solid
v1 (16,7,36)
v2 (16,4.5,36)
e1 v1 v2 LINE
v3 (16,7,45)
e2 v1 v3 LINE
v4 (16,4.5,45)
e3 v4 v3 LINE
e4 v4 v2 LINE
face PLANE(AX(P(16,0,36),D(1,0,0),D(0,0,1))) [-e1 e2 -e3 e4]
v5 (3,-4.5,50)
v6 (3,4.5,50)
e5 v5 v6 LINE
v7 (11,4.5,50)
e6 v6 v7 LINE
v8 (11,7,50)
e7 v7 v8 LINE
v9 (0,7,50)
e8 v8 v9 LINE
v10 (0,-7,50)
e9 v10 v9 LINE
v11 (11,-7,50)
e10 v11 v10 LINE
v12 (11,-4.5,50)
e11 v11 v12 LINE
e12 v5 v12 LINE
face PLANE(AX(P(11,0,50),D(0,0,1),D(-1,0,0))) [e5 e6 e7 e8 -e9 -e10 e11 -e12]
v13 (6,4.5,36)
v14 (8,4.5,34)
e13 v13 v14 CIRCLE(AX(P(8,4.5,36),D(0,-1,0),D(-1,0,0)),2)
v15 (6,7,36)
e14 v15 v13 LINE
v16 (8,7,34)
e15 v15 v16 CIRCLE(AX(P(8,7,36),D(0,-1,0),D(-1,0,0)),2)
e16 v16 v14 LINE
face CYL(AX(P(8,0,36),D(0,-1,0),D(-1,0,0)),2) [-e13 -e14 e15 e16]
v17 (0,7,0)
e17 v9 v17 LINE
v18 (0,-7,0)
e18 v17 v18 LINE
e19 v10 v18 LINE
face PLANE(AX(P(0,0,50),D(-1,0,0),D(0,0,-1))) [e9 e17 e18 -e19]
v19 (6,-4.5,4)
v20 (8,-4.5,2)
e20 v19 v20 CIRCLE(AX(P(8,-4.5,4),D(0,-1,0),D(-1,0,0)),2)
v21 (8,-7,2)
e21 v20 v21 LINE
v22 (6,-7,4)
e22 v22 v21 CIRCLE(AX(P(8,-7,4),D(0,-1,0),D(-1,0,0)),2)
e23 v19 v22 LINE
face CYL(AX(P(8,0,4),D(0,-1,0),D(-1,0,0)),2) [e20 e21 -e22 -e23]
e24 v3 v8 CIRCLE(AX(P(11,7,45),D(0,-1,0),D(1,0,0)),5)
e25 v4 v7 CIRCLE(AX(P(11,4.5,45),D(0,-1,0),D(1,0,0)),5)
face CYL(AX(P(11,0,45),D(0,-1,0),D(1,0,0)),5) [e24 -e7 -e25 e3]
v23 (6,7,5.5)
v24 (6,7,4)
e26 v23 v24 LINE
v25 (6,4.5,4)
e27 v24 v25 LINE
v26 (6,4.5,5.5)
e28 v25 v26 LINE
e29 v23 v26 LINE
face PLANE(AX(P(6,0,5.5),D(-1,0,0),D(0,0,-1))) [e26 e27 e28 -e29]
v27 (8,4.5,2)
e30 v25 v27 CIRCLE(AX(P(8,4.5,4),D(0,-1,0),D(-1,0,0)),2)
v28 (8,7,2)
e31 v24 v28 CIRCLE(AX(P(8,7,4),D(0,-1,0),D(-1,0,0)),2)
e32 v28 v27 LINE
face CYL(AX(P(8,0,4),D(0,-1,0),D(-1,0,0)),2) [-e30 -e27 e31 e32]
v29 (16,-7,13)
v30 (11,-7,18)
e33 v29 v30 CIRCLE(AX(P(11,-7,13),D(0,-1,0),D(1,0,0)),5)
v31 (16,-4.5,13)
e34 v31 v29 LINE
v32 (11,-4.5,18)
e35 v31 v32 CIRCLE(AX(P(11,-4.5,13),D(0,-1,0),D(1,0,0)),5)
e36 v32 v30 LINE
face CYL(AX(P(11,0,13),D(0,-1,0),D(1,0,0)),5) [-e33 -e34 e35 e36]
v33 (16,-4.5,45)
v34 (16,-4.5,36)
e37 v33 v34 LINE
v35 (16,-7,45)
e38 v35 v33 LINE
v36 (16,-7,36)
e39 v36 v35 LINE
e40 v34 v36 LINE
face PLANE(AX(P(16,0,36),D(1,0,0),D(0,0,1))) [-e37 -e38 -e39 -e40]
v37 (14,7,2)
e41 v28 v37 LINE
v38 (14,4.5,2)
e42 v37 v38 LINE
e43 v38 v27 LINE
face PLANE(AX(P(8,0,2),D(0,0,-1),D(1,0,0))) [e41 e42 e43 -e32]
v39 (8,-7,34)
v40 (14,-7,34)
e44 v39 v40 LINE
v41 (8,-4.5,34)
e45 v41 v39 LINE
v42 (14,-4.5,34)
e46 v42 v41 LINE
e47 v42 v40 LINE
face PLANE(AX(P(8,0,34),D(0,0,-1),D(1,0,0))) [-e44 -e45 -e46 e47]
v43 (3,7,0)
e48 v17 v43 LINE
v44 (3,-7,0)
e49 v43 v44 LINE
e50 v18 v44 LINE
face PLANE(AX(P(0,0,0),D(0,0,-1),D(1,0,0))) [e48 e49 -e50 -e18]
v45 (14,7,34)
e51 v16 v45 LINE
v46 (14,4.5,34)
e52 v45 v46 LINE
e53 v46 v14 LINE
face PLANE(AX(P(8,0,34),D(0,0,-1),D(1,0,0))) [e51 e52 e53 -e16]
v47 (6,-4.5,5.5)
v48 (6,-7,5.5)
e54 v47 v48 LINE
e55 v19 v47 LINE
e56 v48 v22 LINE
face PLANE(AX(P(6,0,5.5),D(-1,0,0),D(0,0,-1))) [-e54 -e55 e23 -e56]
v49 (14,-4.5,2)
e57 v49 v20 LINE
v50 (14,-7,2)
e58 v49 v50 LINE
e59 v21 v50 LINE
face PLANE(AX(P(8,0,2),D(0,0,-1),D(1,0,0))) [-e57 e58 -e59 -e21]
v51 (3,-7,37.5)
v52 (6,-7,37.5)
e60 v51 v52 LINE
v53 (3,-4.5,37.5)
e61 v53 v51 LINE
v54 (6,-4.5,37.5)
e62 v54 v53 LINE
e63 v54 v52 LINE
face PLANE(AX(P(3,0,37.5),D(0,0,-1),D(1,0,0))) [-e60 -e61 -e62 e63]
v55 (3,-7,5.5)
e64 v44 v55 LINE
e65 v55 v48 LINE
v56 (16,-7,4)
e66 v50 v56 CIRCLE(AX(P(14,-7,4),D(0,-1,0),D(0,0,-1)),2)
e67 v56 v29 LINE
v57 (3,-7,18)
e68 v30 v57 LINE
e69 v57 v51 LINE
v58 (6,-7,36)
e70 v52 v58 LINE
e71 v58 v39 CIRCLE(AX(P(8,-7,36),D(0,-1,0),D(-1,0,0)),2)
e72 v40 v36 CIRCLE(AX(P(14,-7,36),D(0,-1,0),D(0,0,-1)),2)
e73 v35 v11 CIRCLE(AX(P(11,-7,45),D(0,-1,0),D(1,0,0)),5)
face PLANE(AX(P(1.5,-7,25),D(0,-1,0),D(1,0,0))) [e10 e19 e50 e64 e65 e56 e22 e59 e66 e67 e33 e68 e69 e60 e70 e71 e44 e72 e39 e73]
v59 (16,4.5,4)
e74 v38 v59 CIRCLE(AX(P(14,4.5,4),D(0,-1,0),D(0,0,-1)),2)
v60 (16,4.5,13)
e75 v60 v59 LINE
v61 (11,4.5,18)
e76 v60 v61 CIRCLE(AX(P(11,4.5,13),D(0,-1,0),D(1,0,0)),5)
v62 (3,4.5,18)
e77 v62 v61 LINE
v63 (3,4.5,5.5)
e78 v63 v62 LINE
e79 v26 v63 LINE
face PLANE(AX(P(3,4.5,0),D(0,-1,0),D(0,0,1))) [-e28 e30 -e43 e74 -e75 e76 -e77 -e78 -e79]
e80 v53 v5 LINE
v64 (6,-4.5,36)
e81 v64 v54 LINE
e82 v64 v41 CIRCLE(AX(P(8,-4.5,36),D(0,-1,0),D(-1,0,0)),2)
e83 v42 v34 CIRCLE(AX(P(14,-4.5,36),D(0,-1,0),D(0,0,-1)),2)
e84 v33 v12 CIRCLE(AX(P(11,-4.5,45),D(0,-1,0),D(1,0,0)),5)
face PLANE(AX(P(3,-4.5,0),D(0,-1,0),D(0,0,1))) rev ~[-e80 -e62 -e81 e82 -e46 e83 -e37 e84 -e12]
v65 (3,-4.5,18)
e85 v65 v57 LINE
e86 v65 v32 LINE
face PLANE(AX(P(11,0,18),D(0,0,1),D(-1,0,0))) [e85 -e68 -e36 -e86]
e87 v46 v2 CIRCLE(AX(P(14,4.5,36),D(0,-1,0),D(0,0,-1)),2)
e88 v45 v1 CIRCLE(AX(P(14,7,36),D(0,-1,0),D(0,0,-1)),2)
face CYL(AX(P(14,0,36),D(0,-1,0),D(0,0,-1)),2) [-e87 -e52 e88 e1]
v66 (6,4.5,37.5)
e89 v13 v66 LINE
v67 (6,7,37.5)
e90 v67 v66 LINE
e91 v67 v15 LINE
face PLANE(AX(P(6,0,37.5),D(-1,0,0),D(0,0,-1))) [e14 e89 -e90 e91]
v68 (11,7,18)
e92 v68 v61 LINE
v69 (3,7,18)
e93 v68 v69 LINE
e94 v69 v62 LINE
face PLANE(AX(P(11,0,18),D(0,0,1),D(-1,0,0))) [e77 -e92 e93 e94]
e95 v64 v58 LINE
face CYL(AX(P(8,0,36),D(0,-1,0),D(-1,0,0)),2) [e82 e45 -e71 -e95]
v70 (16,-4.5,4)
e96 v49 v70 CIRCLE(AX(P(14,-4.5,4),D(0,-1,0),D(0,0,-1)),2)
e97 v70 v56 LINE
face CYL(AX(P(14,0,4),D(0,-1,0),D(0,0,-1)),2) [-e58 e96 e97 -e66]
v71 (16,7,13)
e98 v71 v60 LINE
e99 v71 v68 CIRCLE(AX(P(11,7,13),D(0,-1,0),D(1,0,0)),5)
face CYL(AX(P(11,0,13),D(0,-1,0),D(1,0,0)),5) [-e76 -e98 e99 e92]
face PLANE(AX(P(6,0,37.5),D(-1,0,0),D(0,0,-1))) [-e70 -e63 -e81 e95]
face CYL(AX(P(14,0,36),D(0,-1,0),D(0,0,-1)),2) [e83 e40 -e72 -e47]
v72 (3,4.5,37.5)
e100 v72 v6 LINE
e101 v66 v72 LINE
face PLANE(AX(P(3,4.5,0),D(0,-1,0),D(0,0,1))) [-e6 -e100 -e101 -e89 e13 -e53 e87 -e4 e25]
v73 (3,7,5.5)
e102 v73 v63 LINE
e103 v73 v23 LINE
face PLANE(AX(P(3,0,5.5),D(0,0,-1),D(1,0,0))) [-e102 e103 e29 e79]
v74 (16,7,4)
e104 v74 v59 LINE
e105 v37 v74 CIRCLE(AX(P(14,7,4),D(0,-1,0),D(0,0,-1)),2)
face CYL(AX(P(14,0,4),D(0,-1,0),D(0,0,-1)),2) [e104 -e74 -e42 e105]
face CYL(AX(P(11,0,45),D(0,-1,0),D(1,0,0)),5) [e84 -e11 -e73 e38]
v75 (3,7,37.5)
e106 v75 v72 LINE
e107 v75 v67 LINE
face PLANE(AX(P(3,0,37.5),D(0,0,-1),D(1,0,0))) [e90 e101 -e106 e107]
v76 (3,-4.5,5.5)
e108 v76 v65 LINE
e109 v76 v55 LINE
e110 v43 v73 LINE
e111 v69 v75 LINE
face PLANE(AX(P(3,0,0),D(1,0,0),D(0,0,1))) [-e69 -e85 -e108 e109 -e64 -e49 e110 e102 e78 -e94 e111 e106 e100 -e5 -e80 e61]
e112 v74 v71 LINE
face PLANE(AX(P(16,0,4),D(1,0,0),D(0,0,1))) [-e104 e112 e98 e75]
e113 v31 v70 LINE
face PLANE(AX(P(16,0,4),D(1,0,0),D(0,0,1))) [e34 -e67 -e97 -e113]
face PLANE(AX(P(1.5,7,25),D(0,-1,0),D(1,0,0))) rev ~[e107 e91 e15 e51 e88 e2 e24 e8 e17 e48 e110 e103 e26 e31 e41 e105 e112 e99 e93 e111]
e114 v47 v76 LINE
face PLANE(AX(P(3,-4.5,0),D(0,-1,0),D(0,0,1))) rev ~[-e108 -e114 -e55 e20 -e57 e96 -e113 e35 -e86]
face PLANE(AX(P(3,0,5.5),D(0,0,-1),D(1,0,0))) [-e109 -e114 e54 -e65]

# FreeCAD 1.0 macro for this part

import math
import FreeCAD as App
import Part
import Sketcher

doc = App.newDocument("Part")
body = doc.addObject("PartDesign::Body", "Body")

# Sketch on XZ plane
sketch1 = doc.addObject("Sketcher::SketchObject", "Sketch")
body.addObject(sketch1)
sketch1.AttachmentSupport = (doc.XZ_Plane, [""])
sketch1.MapMode = "FlatFace"
sketch1.addGeometry([
    Part.LineSegment(App.Vector(0, 50, 0), App.Vector(0, 0, 0)),  # 0
    Part.LineSegment(App.Vector(0, 0, 0), App.Vector(3, 0, 0)),  # 1
    Part.LineSegment(App.Vector(3, 0, 0), App.Vector(3, 5.5, 0)),  # 2
    Part.LineSegment(App.Vector(3, 5.5, 0), App.Vector(6, 5.5, 0)),  # 3
    Part.LineSegment(App.Vector(6, 5.5, 0), App.Vector(6, 4, 0)),  # 4
    Part.ArcOfCircle(Part.Circle(App.Vector(8, 4, 0), App.Vector(0, 0, 1), 2), math.radians(180), math.radians(270)),  # 5
    Part.LineSegment(App.Vector(8, 2, 0), App.Vector(14, 2, 0)),  # 6
    Part.ArcOfCircle(Part.Circle(App.Vector(14, 4, 0), App.Vector(0, 0, 1), 2), math.radians(-90), math.radians(0)),  # 7
    Part.LineSegment(App.Vector(16, 4, 0), App.Vector(16, 13, 0)),  # 8
    Part.ArcOfCircle(Part.Circle(App.Vector(11, 13, 0), App.Vector(0, 0, 1), 5), math.radians(0), math.radians(90)),  # 9
    Part.LineSegment(App.Vector(11, 18, 0), App.Vector(3, 18, 0)),  # 10
    Part.LineSegment(App.Vector(3, 18, 0), App.Vector(3, 37.5, 0)),  # 11
    Part.LineSegment(App.Vector(3, 37.5, 0), App.Vector(6, 37.5, 0)),  # 12
    Part.LineSegment(App.Vector(6, 37.5, 0), App.Vector(6, 36, 0)),  # 13
    Part.ArcOfCircle(Part.Circle(App.Vector(8, 36, 0), App.Vector(0, 0, 1), 2), math.radians(180), math.radians(270)),  # 14
    Part.LineSegment(App.Vector(8, 34, 0), App.Vector(14, 34, 0)),  # 15
    Part.ArcOfCircle(Part.Circle(App.Vector(14, 36, 0), App.Vector(0, 0, 1), 2), math.radians(-90), math.radians(0)),  # 16
    Part.LineSegment(App.Vector(16, 36, 0), App.Vector(16, 45, 0)),  # 17
    Part.ArcOfCircle(Part.Circle(App.Vector(11, 45, 0), App.Vector(0, 0, 1), 5), math.radians(0), math.radians(90)),  # 18
    Part.LineSegment(App.Vector(11, 50, 0), App.Vector(0, 50, 0)),  # 19
], False)
sketch1.addConstraint([
    Sketcher.Constraint("Coincident", 0, 2, 1, 1),
    Sketcher.Constraint("Coincident", 1, 2, 2, 1),
    Sketcher.Constraint("Coincident", 2, 2, 3, 1),
    Sketcher.Constraint("Coincident", 3, 2, 4, 1),
    Sketcher.Constraint("Tangent", 4, 2, 5, 1),
    Sketcher.Constraint("Tangent", 5, 2, 6, 1),
    Sketcher.Constraint("Tangent", 6, 2, 7, 1),
    Sketcher.Constraint("Tangent", 7, 2, 8, 1),
    Sketcher.Constraint("Tangent", 8, 2, 9, 1),
    Sketcher.Constraint("Tangent", 9, 2, 10, 1),
    Sketcher.Constraint("Coincident", 10, 2, 11, 1),
    Sketcher.Constraint("Coincident", 11, 2, 12, 1),
    Sketcher.Constraint("Coincident", 12, 2, 13, 1),
    Sketcher.Constraint("Tangent", 13, 2, 14, 1),
    Sketcher.Constraint("Tangent", 14, 2, 15, 1),
    Sketcher.Constraint("Tangent", 15, 2, 16, 1),
    Sketcher.Constraint("Tangent", 16, 2, 17, 1),
    Sketcher.Constraint("Tangent", 17, 2, 18, 1),
    Sketcher.Constraint("Tangent", 18, 2, 19, 1),
    Sketcher.Constraint("Coincident", 19, 2, 0, 1),
    Sketcher.Constraint("Vertical", 0),
    Sketcher.Constraint("Horizontal", 1),
    Sketcher.Constraint("Vertical", 2),
    Sketcher.Constraint("Horizontal", 3),
    Sketcher.Constraint("Vertical", 4),
    Sketcher.Constraint("Horizontal", 6),
    Sketcher.Constraint("Vertical", 8),
    Sketcher.Constraint("Horizontal", 10),
    Sketcher.Constraint("Vertical", 11),
    Sketcher.Constraint("Horizontal", 12),
    Sketcher.Constraint("Vertical", 13),
    Sketcher.Constraint("Horizontal", 15),
    Sketcher.Constraint("Vertical", 17),
    Sketcher.Constraint("Horizontal", 19),
    Sketcher.Constraint("Coincident", 0, 2, -1, 1),
    Sketcher.Constraint("Equal", 5, 7),
    Sketcher.Constraint("Equal", 7, 14),
    Sketcher.Constraint("Equal", 14, 16),
    Sketcher.Constraint("Equal", 9, 18),
    Sketcher.Constraint("Vertical", 5, 3, 14, 3),
    Sketcher.Constraint("Vertical", 7, 3, 16, 3),
    Sketcher.Constraint("Vertical", 2, 2, 10, 2),
    Sketcher.Constraint("Equal", 1, 3),
    Sketcher.Constraint("Equal", 4, 13),
    Sketcher.Constraint("Equal", 8, 17),
    Sketcher.Constraint("Radius", 5, 2.0),
    Sketcher.Constraint("Radius", 9, 5.0),
    Sketcher.Constraint("DistanceX", 1, 1, 1, 2, 3.0),
    Sketcher.Constraint("DistanceX", 6, 1, 6, 2, 6.0),
    Sketcher.Constraint("DistanceY", 0, 2, 0, 1, 50.0),
    Sketcher.Constraint("DistanceY", 8, 1, 8, 2, 9.0),
    Sketcher.Constraint("DistanceY", 2, 1, 2, 2, 5.5),
    Sketcher.Constraint("DistanceY", 4, 2, 4, 1, 1.5),
])
pad1 = doc.addObject("PartDesign::Pad", "Pad")
body.addObject(pad1)
pad1.Profile = sketch1
pad1.Length = 14
pad1.Midplane = True

# Sketch on YZ plane
sketch2 = doc.addObject("Sketcher::SketchObject", "Sketch001")
body.addObject(sketch2)
sketch2.AttachmentSupport = (doc.YZ_Plane, [""])
sketch2.MapMode = "FlatFace"
sketch2.AttachmentOffset = App.Placement(App.Vector(0, 0, 3), App.Rotation())
sketch2.addGeometry([
    Part.LineSegment(App.Vector(-4, 50, 0), App.Vector(-4, 0, 0)),
    Part.LineSegment(App.Vector(-4, 0, 0), App.Vector(4, 0, 0)),
    Part.LineSegment(App.Vector(4, 0, 0), App.Vector(4, 50, 0)),
    Part.LineSegment(App.Vector(4, 50, 0), App.Vector(-4, 50, 0)),
], False)
sketch2.addConstraint([
    Sketcher.Constraint("Coincident", 0, 2, 1, 1),
    Sketcher.Constraint("Coincident", 1, 2, 2, 1),
    Sketcher.Constraint("Coincident", 2, 2, 3, 1),
    Sketcher.Constraint("Coincident", 3, 2, 0, 1),
    Sketcher.Constraint("Vertical", 0),
    Sketcher.Constraint("Horizontal", 1),
    Sketcher.Constraint("Vertical", 2),
    Sketcher.Constraint("Horizontal", 3),
    Sketcher.Constraint("Symmetric", 0, 2, 1, 2, -1, 1),
    Sketcher.Constraint("DistanceX", 1, 1, 1, 2, 9.0),
    Sketcher.Constraint("DistanceY", 0, 2, 0, 1, 50.0),
])
pocket1 = doc.addObject("PartDesign::Pocket", "Pocket")
body.addObject(pocket1)
pocket1.Profile = sketch2
pocket1.Type = "ThroughAll"
pocket1.Reversed = True

doc.recompute()
